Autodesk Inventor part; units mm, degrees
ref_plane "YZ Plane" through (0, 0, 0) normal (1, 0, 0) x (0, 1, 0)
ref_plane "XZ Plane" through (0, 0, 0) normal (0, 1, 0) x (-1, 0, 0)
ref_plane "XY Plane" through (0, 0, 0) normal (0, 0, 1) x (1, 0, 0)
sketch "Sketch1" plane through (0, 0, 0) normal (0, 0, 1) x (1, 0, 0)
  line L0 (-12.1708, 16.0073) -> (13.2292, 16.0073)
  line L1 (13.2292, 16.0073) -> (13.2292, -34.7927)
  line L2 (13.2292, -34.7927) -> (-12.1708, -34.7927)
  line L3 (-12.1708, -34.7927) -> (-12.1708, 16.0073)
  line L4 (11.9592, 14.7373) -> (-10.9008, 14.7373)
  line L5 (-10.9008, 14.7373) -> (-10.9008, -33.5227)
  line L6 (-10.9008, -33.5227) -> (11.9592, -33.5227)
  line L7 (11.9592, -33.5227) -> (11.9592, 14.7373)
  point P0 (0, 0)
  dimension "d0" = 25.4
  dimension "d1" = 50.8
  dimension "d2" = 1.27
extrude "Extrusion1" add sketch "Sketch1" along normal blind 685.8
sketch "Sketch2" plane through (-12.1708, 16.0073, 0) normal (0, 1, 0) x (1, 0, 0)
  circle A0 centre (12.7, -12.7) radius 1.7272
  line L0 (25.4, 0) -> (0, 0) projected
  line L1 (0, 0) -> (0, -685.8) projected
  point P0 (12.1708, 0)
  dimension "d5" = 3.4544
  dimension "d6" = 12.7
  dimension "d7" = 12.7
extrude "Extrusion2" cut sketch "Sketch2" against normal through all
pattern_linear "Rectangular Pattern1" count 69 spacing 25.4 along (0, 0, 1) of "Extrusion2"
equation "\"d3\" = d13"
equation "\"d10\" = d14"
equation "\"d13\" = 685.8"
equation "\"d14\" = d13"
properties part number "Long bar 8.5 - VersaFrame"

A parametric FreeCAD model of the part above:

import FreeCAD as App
import Part
import Sketcher
from FreeCAD import Vector
Q = App.Units.Quantity


def add_polygon(sketch, points):
    """Adds a closed chain of lines whose ends are joined by coincident constraints."""
    first, n = sketch.GeometryCount, len(points)
    for a, b in zip(points, points[1:] + points[:1]):
        sketch.addGeometry(Part.LineSegment(App.Vector(*a, 0), App.Vector(*b, 0)), False)
    for i in range(n):
        sketch.addConstraint(Sketcher.Constraint("Coincident", first + i, 2, first + (i + 1) % n, 1))

doc = App.newDocument("Part")
params = doc.addObject("Spreadsheet::Sheet", "Params")
for row, (alias, value) in enumerate([
    ("sketch1_width", "1 in"),
    ("sketch1_height", "2 in"),
    ("pad1_length", "27 in"),
    ("sketch2_diameter", "0.136 in"),
    ("linearpattern_pitch", "1 in"),
], start=1):
    params.set(f"A{row}", alias)
    params.set(f"B{row}", "=" + value)
    params.setAlias(f"B{row}", alias)

body = doc.addObject("PartDesign::Body", "Body")

# Sketch on XY plane
sketch1 = doc.addObject("Sketcher::SketchObject", "Sketch")
body.addObject(sketch1)
sketch1.AttachmentSupport = (doc.XY_Plane, [""])
sketch1.MapMode = "FlatFace"
add_polygon(sketch1, [(13.2292, 16.0073), (-12.1708, 16.0073), (-12.1708, -34.7927), (13.2292, -34.7927)])  # lines 0-3
add_polygon(sketch1, [(-10.9008, 14.7373), (11.9592, 14.7373), (11.9592, -33.5227), (-10.9008, -33.5227)])  # lines 4-7
sketch1.addConstraint([
    Sketcher.Constraint("Horizontal", 0),
    Sketcher.Constraint("Vertical", 1),
    Sketcher.Constraint("Horizontal", 2),
    Sketcher.Constraint("Vertical", 3),
    Sketcher.Constraint("Horizontal", 4),
    Sketcher.Constraint("Vertical", 5),
    Sketcher.Constraint("Horizontal", 6),
    Sketcher.Constraint("Vertical", 7),
    Sketcher.Constraint("DistanceX", 0, 2, 0, 1, Q("1 in")),
    Sketcher.Constraint("DistanceY", 1, 2, 1, 1, Q("2 in")),
    Sketcher.Constraint("DistanceX", 4, 2, 3, 2, Q("0.05 in")),
    Sketcher.Constraint("DistanceY", 4, 2, 3, 2, Q("0.05 in")),
    Sketcher.Constraint("DistanceY", 2, 2, 5, 2, Q("0.05 in")),
    Sketcher.Constraint("DistanceX", 1, 2, 6, 2, Q("0.05 in")),
    Sketcher.Constraint("DistanceY", -1, 1, 0, 2, Q("0.6302 in")),
    Sketcher.Constraint("DistanceX", 0, 2, -1, 1, 12.1708),
])
sketch1.setExpression("Constraints[16]", "Params.sketch1_width")
sketch1.setExpression("Constraints[17]", "Params.sketch1_height")
pad1 = doc.addObject("PartDesign::Pad", "Pad")
body.addObject(pad1)
pad1.Profile = sketch1
pad1.setExpression("Length", "Params.pad1_length")

# Sketch on XZ plane
sketch2 = doc.addObject("Sketcher::SketchObject", "Sketch001")
body.addObject(sketch2)
sketch2.AttachmentSupport = (doc.XZ_Plane, [""])
sketch2.MapMode = "FlatFace"
sketch2.AttachmentOffset = App.Placement(Vector(0, 0, -0.6302087 * 25.4), App.Rotation())
sketch2.addGeometry(Part.Circle(Vector(0.5292, 12.7, 0), Vector(0, 0, 1), 1.7272), False)
sketch2.addConstraint([
    Sketcher.Constraint("Diameter", 0, Q("0.136 in")),
    Sketcher.Constraint("DistanceY", -1, 1, 0, 3, Q("0.5 in")),
    Sketcher.Constraint("DistanceX", -1, 1, 0, 3, 0.5292),
])
sketch2.setExpression("Constraints[0]", "Params.sketch2_diameter")
pocket1 = doc.addObject("PartDesign::Pocket", "Pocket")
body.addObject(pocket1)
pocket1.Profile = sketch2
pocket1.Type = "ThroughAll"
pocket1.Reversed = True
doc.recompute()

linearpattern = doc.addObject("PartDesign::LinearPattern", "LinearPattern")
body.addObject(linearpattern)
linearpattern.Originals = [pocket1]
linearpattern.Direction = (doc.Z_Axis, [""])
linearpattern.Mode = "offset"
linearpattern.setExpression("Offset", "Params.linearpattern_pitch")
linearpattern.Occurrences = 69
body.Tip = linearpattern

doc.recompute()
